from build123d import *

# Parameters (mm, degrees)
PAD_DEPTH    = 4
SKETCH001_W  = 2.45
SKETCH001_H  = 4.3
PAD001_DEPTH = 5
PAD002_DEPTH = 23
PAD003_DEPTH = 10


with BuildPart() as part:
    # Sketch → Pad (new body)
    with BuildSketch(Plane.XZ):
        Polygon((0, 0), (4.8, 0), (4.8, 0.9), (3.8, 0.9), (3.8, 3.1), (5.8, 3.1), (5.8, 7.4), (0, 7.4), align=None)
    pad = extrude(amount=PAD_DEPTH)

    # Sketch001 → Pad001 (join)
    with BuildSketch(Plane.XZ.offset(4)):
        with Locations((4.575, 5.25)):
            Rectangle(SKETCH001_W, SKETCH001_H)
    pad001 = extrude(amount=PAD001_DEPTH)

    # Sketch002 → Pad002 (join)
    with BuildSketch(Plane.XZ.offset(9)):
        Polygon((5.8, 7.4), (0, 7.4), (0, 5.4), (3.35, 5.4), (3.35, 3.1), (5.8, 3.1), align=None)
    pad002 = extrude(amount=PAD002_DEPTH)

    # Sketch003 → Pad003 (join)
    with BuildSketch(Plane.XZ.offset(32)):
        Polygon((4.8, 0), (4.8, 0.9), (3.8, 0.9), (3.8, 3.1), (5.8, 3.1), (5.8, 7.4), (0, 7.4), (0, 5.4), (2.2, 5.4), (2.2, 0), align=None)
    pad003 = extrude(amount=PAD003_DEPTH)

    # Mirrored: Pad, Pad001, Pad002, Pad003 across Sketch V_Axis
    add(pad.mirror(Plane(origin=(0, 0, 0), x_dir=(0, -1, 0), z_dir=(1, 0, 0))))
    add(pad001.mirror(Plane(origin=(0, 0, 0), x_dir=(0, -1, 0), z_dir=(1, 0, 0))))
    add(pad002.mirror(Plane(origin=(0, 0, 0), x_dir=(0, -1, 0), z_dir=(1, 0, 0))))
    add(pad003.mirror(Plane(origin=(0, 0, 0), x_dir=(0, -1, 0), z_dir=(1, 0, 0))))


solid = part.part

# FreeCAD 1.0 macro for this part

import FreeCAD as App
import Part
import Sketcher

doc = App.newDocument("Part")
body = doc.addObject("PartDesign::Body", "Body")

# Sketch on XZ plane
sketch1 = body.newObject("Sketcher::SketchObject", "Sketch")
sketch1.AttachmentSupport = (doc.getObject("XZ_Plane"), [""])
sketch1.MapMode = "FlatFace"
sketch1.addGeometry(Part.LineSegment(App.Vector(0, 0, 0), App.Vector(4.8, 0, 0)), False)
sketch1.addGeometry(Part.LineSegment(App.Vector(4.8, 0, 0), App.Vector(4.8, 0.9, 0)), False)
sketch1.addGeometry(Part.LineSegment(App.Vector(4.8, 0.9, 0), App.Vector(3.8, 0.9, 0)), False)
sketch1.addGeometry(Part.LineSegment(App.Vector(3.8, 0.9, 0), App.Vector(3.8, 3.1, 0)), False)
sketch1.addGeometry(Part.LineSegment(App.Vector(3.8, 3.1, 0), App.Vector(5.8, 3.1, 0)), False)
sketch1.addGeometry(Part.LineSegment(App.Vector(5.8, 3.1, 0), App.Vector(5.8, 7.4, 0)), False)
sketch1.addGeometry(Part.LineSegment(App.Vector(5.8, 7.4, 0), App.Vector(0, 7.4, 0)), False)
sketch1.addGeometry(Part.LineSegment(App.Vector(0, 7.4, 0), App.Vector(0, 0, 0)), False)
sketch1.addConstraint(Sketcher.Constraint("Coincident", 0, 2, 1, 1))
sketch1.addConstraint(Sketcher.Constraint("Coincident", 1, 2, 2, 1))
sketch1.addConstraint(Sketcher.Constraint("Coincident", 2, 2, 3, 1))
sketch1.addConstraint(Sketcher.Constraint("Coincident", 3, 2, 4, 1))
sketch1.addConstraint(Sketcher.Constraint("Coincident", 4, 2, 5, 1))
sketch1.addConstraint(Sketcher.Constraint("Coincident", 5, 2, 6, 1))
sketch1.addConstraint(Sketcher.Constraint("Coincident", 6, 2, 7, 1))
sketch1.addConstraint(Sketcher.Constraint("Coincident", 7, 2, 0, 1))
sketch1.addConstraint(Sketcher.Constraint("Horizontal", 0))
sketch1.addConstraint(Sketcher.Constraint("Vertical", 1))
sketch1.addConstraint(Sketcher.Constraint("Horizontal", 2))
sketch1.addConstraint(Sketcher.Constraint("Vertical", 3))
sketch1.addConstraint(Sketcher.Constraint("Horizontal", 4))
sketch1.addConstraint(Sketcher.Constraint("Vertical", 5))
sketch1.addConstraint(Sketcher.Constraint("Horizontal", 6))
sketch1.addConstraint(Sketcher.Constraint("Vertical", 7))
sketch1.addConstraint(Sketcher.Constraint("Coincident", 7, 2, -1, 1))
sketch1.addConstraint(Sketcher.Constraint("DistanceX", 2, 2, 2, 1, 1.0))
sketch1.addConstraint(Sketcher.Constraint("DistanceX", 4, 1, 4, 2, 2.0))
sketch1.addConstraint(Sketcher.Constraint("DistanceX", 0, 1, 0, 2, 4.8))
sketch1.addConstraint(Sketcher.Constraint("DistanceY", 1, 1, 1, 2, 0.9))
sketch1.addConstraint(Sketcher.Constraint("DistanceY", 3, 1, 3, 2, 2.2))
sketch1.addConstraint(Sketcher.Constraint("DistanceY", 5, 1, 5, 2, 4.3))
pad1 = body.newObject("PartDesign::Pad", "Pad")
pad1.Profile = sketch1
pad1.Length = 4

# Sketch on XZ plane
sketch2 = body.newObject("Sketcher::SketchObject", "Sketch001")
sketch2.AttachmentSupport = (doc.getObject("XZ_Plane"), [""])
sketch2.MapMode = "FlatFace"
sketch2.AttachmentOffset = App.Placement(App.Vector(0, 0, 4), App.Rotation())
sketch2.addGeometry(Part.LineSegment(App.Vector(3.4, 7.4, 0), App.Vector(3.4, 3.1, 0)), False)
sketch2.addGeometry(Part.LineSegment(App.Vector(3.4, 3.1, 0), App.Vector(5.8, 3.1, 0)), False)
sketch2.addGeometry(Part.LineSegment(App.Vector(5.8, 3.1, 0), App.Vector(5.8, 7.4, 0)), False)
sketch2.addGeometry(Part.LineSegment(App.Vector(5.8, 7.4, 0), App.Vector(3.4, 7.4, 0)), False)
sketch2.addConstraint(Sketcher.Constraint("Coincident", 0, 2, 1, 1))
sketch2.addConstraint(Sketcher.Constraint("Coincident", 1, 2, 2, 1))
sketch2.addConstraint(Sketcher.Constraint("Coincident", 2, 2, 3, 1))
sketch2.addConstraint(Sketcher.Constraint("Coincident", 3, 2, 0, 1))
sketch2.addConstraint(Sketcher.Constraint("Vertical", 0))
sketch2.addConstraint(Sketcher.Constraint("Horizontal", 1))
sketch2.addConstraint(Sketcher.Constraint("Vertical", 2))
sketch2.addConstraint(Sketcher.Constraint("Horizontal", 3))
sketch2.addConstraint(Sketcher.Constraint("DistanceY", 0, 2, 0, 1, 4.3))
sketch2.addConstraint(Sketcher.Constraint("DistanceX", 1, 1, 1, 2, 2.45))
sketch2.addConstraint(Sketcher.Constraint("DistanceY", -1, 1, 0, 2, 3.1))
sketch2.addConstraint(Sketcher.Constraint("DistanceX", -1, 1, 1, 2, 5.8))
pad2 = body.newObject("PartDesign::Pad", "Pad001")
pad2.Profile = sketch2
pad2.Length = 5

# Sketch on XZ plane
sketch3 = body.newObject("Sketcher::SketchObject", "Sketch002")
sketch3.AttachmentSupport = (doc.getObject("XZ_Plane"), [""])
sketch3.MapMode = "FlatFace"
sketch3.AttachmentOffset = App.Placement(App.Vector(0, 0, 9), App.Rotation())
sketch3.addGeometry(Part.LineSegment(App.Vector(5.8, 7.4, 0), App.Vector(0, 7.4, 0)), False)
sketch3.addGeometry(Part.LineSegment(App.Vector(0, 7.4, 0), App.Vector(0, 5.4, 0)), False)
sketch3.addGeometry(Part.LineSegment(App.Vector(0, 5.4, 0), App.Vector(3.4, 5.4, 0)), False)
sketch3.addGeometry(Part.LineSegment(App.Vector(3.4, 5.4, 0), App.Vector(3.4, 3.1, 0)), False)
sketch3.addGeometry(Part.LineSegment(App.Vector(3.4, 3.1, 0), App.Vector(5.8, 3.1, 0)), False)
sketch3.addGeometry(Part.LineSegment(App.Vector(5.8, 3.1, 0), App.Vector(5.8, 7.4, 0)), False)
sketch3.addConstraint(Sketcher.Constraint("Coincident", 0, 2, 1, 1))
sketch3.addConstraint(Sketcher.Constraint("Coincident", 1, 2, 2, 1))
sketch3.addConstraint(Sketcher.Constraint("Coincident", 2, 2, 3, 1))
sketch3.addConstraint(Sketcher.Constraint("Coincident", 3, 2, 4, 1))
sketch3.addConstraint(Sketcher.Constraint("Coincident", 4, 2, 5, 1))
sketch3.addConstraint(Sketcher.Constraint("Coincident", 5, 2, 0, 1))
sketch3.addConstraint(Sketcher.Constraint("Horizontal", 0))
sketch3.addConstraint(Sketcher.Constraint("Vertical", 1))
sketch3.addConstraint(Sketcher.Constraint("Horizontal", 2))
sketch3.addConstraint(Sketcher.Constraint("Vertical", 3))
sketch3.addConstraint(Sketcher.Constraint("Horizontal", 4))
sketch3.addConstraint(Sketcher.Constraint("Vertical", 5))
sketch3.addConstraint(Sketcher.Constraint("PointOnObject", 0, 2, -2))
sketch3.addConstraint(Sketcher.Constraint("DistanceY", 1, 2, 1, 1, 2.0))
sketch3.addConstraint(Sketcher.Constraint("DistanceX", 0, 2, 0, 1, 5.8))
sketch3.addConstraint(Sketcher.Constraint("DistanceY", 3, 2, 3, 1, 2.3))
sketch3.addConstraint(Sketcher.Constraint("DistanceX", 2, 1, 2, 2, 3.35))
sketch3.addConstraint(Sketcher.Constraint("DistanceY", -1, 1, 0, 2, 7.4))
pad3 = body.newObject("PartDesign::Pad", "Pad002")
pad3.Profile = sketch3
pad3.Length = 23

# Sketch on XZ plane
sketch4 = body.newObject("Sketcher::SketchObject", "Sketch003")
sketch4.AttachmentSupport = (doc.getObject("XZ_Plane"), [""])
sketch4.MapMode = "FlatFace"
sketch4.AttachmentOffset = App.Placement(App.Vector(0, 0, 32), App.Rotation())
sketch4.addGeometry(Part.LineSegment(App.Vector(4.8, 0, 0), App.Vector(4.8, 0.9, 0)), False)
sketch4.addGeometry(Part.LineSegment(App.Vector(4.8, 0.9, 0), App.Vector(3.8, 0.9, 0)), False)
sketch4.addGeometry(Part.LineSegment(App.Vector(3.8, 0.9, 0), App.Vector(3.8, 3.1, 0)), False)
sketch4.addGeometry(Part.LineSegment(App.Vector(3.8, 3.1, 0), App.Vector(5.8, 3.1, 0)), False)
sketch4.addGeometry(Part.LineSegment(App.Vector(5.8, 3.1, 0), App.Vector(5.8, 7.4, 0)), False)
sketch4.addGeometry(Part.LineSegment(App.Vector(5.8, 7.4, 0), App.Vector(0, 7.4, 0)), False)
sketch4.addGeometry(Part.LineSegment(App.Vector(0, 7.4, 0), App.Vector(0, 5.4, 0)), False)
sketch4.addGeometry(Part.LineSegment(App.Vector(0, 5.4, 0), App.Vector(2.2, 5.4, 0)), False)
sketch4.addGeometry(Part.LineSegment(App.Vector(2.2, 5.4, 0), App.Vector(2.2, 0, 0)), False)
sketch4.addGeometry(Part.LineSegment(App.Vector(2.2, 0, 0), App.Vector(4.8, 0, 0)), False)
sketch4.addConstraint(Sketcher.Constraint("Coincident", 0, 2, 1, 1))
sketch4.addConstraint(Sketcher.Constraint("Coincident", 1, 2, 2, 1))
sketch4.addConstraint(Sketcher.Constraint("Coincident", 2, 2, 3, 1))
sketch4.addConstraint(Sketcher.Constraint("Coincident", 3, 2, 4, 1))
sketch4.addConstraint(Sketcher.Constraint("Coincident", 4, 2, 5, 1))
sketch4.addConstraint(Sketcher.Constraint("Coincident", 5, 2, 6, 1))
sketch4.addConstraint(Sketcher.Constraint("Coincident", 6, 2, 7, 1))
sketch4.addConstraint(Sketcher.Constraint("Coincident", 7, 2, 8, 1))
sketch4.addConstraint(Sketcher.Constraint("Coincident", 8, 2, 9, 1))
sketch4.addConstraint(Sketcher.Constraint("Coincident", 9, 2, 0, 1))
sketch4.addConstraint(Sketcher.Constraint("Vertical", 0))
sketch4.addConstraint(Sketcher.Constraint("Horizontal", 1))
sketch4.addConstraint(Sketcher.Constraint("Vertical", 2))
sketch4.addConstraint(Sketcher.Constraint("Horizontal", 3))
sketch4.addConstraint(Sketcher.Constraint("Vertical", 4))
sketch4.addConstraint(Sketcher.Constraint("Horizontal", 5))
sketch4.addConstraint(Sketcher.Constraint("Vertical", 6))
sketch4.addConstraint(Sketcher.Constraint("Horizontal", 7))
sketch4.addConstraint(Sketcher.Constraint("Vertical", 8))
sketch4.addConstraint(Sketcher.Constraint("Horizontal", 9))
sketch4.addConstraint(Sketcher.Constraint("PointOnObject", 5, 2, -2))
sketch4.addConstraint(Sketcher.Constraint("PointOnObject", 8, 2, -1))
sketch4.addConstraint(Sketcher.Constraint("Equal", 7, 2))
sketch4.addConstraint(Sketcher.Constraint("Equal", 3, 6))
sketch4.addConstraint(Sketcher.Constraint("DistanceX", 1, 2, 1, 1, 1.0))
sketch4.addConstraint(Sketcher.Constraint("DistanceX", 3, 1, 3, 2, 2.0))
sketch4.addConstraint(Sketcher.Constraint("DistanceX", 5, 2, 5, 1, 5.8))
sketch4.addConstraint(Sketcher.Constraint("DistanceX", 7, 1, 7, 2, 2.2))
sketch4.addConstraint(Sketcher.Constraint("DistanceY", 0, 1, 0, 2, 0.9))
sketch4.addConstraint(Sketcher.Constraint("DistanceY", 4, 1, 4, 2, 4.3))
pad4 = body.newObject("PartDesign::Pad", "Pad003")
pad4.Profile = sketch4
pad4.Length = 10
doc.recompute()

mirrored = body.newObject("PartDesign::Mirrored", "Mirrored")
mirrored.Originals = [pad1, pad2, pad3, pad4]
mirrored.MirrorPlane = (doc.getObject("YZ_Plane"), [""])
body.Tip = mirrored

doc.recompute()
